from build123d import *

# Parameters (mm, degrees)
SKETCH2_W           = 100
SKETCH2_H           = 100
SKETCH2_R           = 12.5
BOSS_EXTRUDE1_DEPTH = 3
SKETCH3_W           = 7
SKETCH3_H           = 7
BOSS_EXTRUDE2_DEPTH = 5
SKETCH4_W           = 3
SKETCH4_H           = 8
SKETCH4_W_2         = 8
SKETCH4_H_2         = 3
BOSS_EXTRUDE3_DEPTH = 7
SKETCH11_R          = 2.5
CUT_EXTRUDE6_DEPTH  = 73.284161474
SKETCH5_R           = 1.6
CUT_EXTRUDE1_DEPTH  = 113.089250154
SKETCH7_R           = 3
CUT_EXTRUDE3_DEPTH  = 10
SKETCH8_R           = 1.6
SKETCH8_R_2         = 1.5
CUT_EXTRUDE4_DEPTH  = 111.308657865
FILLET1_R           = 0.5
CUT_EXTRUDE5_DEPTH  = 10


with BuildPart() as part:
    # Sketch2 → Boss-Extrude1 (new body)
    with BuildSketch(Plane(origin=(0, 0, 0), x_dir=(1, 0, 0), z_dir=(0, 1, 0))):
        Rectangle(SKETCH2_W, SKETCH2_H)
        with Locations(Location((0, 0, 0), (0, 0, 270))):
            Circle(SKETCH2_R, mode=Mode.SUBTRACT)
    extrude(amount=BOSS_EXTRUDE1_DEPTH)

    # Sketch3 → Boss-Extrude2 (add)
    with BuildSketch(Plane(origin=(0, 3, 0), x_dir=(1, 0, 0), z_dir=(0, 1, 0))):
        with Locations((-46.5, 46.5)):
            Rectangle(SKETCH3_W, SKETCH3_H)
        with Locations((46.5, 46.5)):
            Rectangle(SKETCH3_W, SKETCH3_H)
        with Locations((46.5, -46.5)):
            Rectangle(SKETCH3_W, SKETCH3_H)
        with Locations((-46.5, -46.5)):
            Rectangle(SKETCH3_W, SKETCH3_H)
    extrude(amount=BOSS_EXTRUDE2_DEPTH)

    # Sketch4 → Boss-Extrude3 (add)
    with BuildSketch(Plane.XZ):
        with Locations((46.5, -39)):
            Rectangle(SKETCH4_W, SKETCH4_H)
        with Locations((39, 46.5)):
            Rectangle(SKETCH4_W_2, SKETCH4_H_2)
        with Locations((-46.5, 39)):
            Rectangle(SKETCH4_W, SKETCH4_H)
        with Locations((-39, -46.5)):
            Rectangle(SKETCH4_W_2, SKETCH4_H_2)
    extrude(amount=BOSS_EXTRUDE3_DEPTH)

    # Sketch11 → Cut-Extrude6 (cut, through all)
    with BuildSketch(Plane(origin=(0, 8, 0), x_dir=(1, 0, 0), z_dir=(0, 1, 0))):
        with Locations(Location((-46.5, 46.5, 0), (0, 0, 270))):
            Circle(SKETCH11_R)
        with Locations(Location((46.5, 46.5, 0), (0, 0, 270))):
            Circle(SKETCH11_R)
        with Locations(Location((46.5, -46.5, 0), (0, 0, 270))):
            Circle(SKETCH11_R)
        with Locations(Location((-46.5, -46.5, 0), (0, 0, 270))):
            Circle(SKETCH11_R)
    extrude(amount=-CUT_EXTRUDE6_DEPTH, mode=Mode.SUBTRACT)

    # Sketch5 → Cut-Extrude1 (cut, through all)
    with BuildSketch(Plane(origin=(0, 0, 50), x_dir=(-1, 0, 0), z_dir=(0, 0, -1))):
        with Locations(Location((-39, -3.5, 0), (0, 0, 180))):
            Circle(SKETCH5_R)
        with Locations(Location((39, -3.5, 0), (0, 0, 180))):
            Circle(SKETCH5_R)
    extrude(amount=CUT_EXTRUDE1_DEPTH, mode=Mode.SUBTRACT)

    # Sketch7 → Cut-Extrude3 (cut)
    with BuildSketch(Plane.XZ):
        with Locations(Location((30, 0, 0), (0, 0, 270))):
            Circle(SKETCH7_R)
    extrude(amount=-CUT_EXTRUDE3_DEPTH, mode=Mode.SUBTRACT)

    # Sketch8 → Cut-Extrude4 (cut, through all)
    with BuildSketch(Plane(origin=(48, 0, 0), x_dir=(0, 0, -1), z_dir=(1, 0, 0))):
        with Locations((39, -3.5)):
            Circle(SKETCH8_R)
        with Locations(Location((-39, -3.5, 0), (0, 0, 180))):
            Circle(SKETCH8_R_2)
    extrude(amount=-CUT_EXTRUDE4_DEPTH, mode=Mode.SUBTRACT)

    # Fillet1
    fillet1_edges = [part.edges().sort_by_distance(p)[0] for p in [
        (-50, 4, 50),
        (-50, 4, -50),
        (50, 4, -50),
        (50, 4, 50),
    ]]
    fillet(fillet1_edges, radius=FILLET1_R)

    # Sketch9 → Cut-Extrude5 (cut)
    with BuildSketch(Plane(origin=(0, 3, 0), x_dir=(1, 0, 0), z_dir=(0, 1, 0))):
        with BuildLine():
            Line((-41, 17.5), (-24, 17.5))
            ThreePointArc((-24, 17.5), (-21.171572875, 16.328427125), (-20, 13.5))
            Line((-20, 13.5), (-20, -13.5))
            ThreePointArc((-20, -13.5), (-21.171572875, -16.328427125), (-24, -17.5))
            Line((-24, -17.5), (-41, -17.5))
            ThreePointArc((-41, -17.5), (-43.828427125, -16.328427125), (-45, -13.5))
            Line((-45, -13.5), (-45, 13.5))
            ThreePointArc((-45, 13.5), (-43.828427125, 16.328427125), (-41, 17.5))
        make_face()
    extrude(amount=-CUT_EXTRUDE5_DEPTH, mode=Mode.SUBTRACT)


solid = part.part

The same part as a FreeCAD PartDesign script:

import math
import FreeCAD as App
import Part
import Sketcher

V = App.Vector


def edges_at(feature, points):
    """Names of the edges that pass closest to the given points."""
    edges = feature.Shape.Edges
    near = lambda p: min(range(len(edges)), key=lambda i: edges[i].distToShape(Part.Vertex(*p))[0])
    return sorted({f"Edge{near(p) + 1}" for p in points})

doc = App.newDocument("Part")
body = doc.addObject("PartDesign::Body", "Body")

sketch1 = body.newObject("Sketcher::SketchObject", "Sketch")
sketch1.AttachmentSupport = (doc.getObject("XZ_Plane"), [""])
sketch1.MapMode = "FlatFace"
sketch1.addGeometry([
    Part.LineSegment(V(-50, -50, 0), V(-50, 50, 0)),
    Part.LineSegment(V(-50, 50, 0), V(50, 50, 0)),
    Part.LineSegment(V(50, 50, 0), V(50, -50, 0)),
    Part.LineSegment(V(50, -50, 0), V(-50, -50, 0)),
    Part.Circle(V(0, 0, 0), V(0, 0, 1), 12),
], False)
sketch1.addConstraint([
    Sketcher.Constraint("Coincident", 0, 2, 1, 1),
    Sketcher.Constraint("Coincident", 1, 2, 2, 1),
    Sketcher.Constraint("Coincident", 2, 2, 3, 1),
    Sketcher.Constraint("Coincident", 3, 2, 0, 1),
    Sketcher.Constraint("Vertical", 0),
    Sketcher.Constraint("Horizontal", 1),
    Sketcher.Constraint("Vertical", 2),
    Sketcher.Constraint("Horizontal", 3),
    Sketcher.Constraint("Coincident", 4, 3, -1, 1),
    Sketcher.Constraint("Symmetric", 0, 2, 2, 2, -1, 1),
    Sketcher.Constraint("Equal", 3, 0),
    Sketcher.Constraint("Diameter", 4, 25.0),
    Sketcher.Constraint("DistanceX", 1, 1, 1, 2, 100.0),
])
pad1 = body.newObject("PartDesign::Pad", "Pad")
pad1.Profile = sketch1
pad1.Length = 3
pad1.Reversed = True

sketch2 = body.newObject("Sketcher::SketchObject", "Sketch001")
sketch2.AttachmentSupport = (doc.getObject("XZ_Plane"), [""])
sketch2.MapMode = "FlatFace"
sketch2.AttachmentOffset = App.Placement(V(0, 0, -3), App.Rotation())
sketch2.addGeometry([
    Part.LineSegment(V(-50, -50, 0), V(-50, -43, 0)),
    Part.LineSegment(V(-50, -43, 0), V(-43, -43, 0)),
    Part.LineSegment(V(-43, -43, 0), V(-43, -50, 0)),
    Part.LineSegment(V(-43, -50, 0), V(-50, -50, 0)),
    Part.LineSegment(V(43, -50, 0), V(43, -43, 0)),
    Part.LineSegment(V(43, -43, 0), V(50, -43, 0)),
    Part.LineSegment(V(50, -43, 0), V(50, -50, 0)),
    Part.LineSegment(V(50, -50, 0), V(43, -50, 0)),
    Part.LineSegment(V(43, 43, 0), V(43, 50, 0)),
    Part.LineSegment(V(43, 50, 0), V(50, 50, 0)),
    Part.LineSegment(V(50, 50, 0), V(50, 43, 0)),
    Part.LineSegment(V(50, 43, 0), V(43, 43, 0)),
    Part.LineSegment(V(-50, 43, 0), V(-50, 50, 0)),
    Part.LineSegment(V(-50, 50, 0), V(-43, 50, 0)),
    Part.LineSegment(V(-43, 50, 0), V(-43, 43, 0)),
    Part.LineSegment(V(-43, 43, 0), V(-50, 43, 0)),
], False)
sketch2.addConstraint([
    Sketcher.Constraint("Coincident", 0, 2, 1, 1),
    Sketcher.Constraint("Coincident", 1, 2, 2, 1),
    Sketcher.Constraint("Coincident", 2, 2, 3, 1),
    Sketcher.Constraint("Coincident", 3, 2, 0, 1),
    Sketcher.Constraint("Coincident", 4, 2, 5, 1),
    Sketcher.Constraint("Coincident", 5, 2, 6, 1),
    Sketcher.Constraint("Coincident", 6, 2, 7, 1),
    Sketcher.Constraint("Coincident", 7, 2, 4, 1),
    Sketcher.Constraint("Coincident", 8, 2, 9, 1),
    Sketcher.Constraint("Coincident", 9, 2, 10, 1),
    Sketcher.Constraint("Coincident", 10, 2, 11, 1),
    Sketcher.Constraint("Coincident", 11, 2, 8, 1),
    Sketcher.Constraint("Coincident", 12, 2, 13, 1),
    Sketcher.Constraint("Coincident", 13, 2, 14, 1),
    Sketcher.Constraint("Coincident", 14, 2, 15, 1),
    Sketcher.Constraint("Coincident", 15, 2, 12, 1),
    Sketcher.Constraint("Vertical", 0),
    Sketcher.Constraint("Horizontal", 1),
    Sketcher.Constraint("Vertical", 2),
    Sketcher.Constraint("Horizontal", 3),
    Sketcher.Constraint("Vertical", 4),
    Sketcher.Constraint("Horizontal", 5),
    Sketcher.Constraint("Vertical", 6),
    Sketcher.Constraint("Horizontal", 7),
    Sketcher.Constraint("Vertical", 8),
    Sketcher.Constraint("Horizontal", 9),
    Sketcher.Constraint("Vertical", 10),
    Sketcher.Constraint("Horizontal", 11),
    Sketcher.Constraint("Vertical", 12),
    Sketcher.Constraint("Horizontal", 13),
    Sketcher.Constraint("Vertical", 14),
    Sketcher.Constraint("Horizontal", 15),
    Sketcher.Constraint("Symmetric", 2, 2, 8, 2, -1, 1),
    Sketcher.Constraint("Symmetric", 0, 2, 10, 2, -1, 1),
    Sketcher.Constraint("Symmetric", 6, 2, 12, 2, -1, 1),
    Sketcher.Constraint("Symmetric", 4, 2, 14, 2, -1, 1),
    Sketcher.Constraint("Symmetric", 1, 2, 4, 2, -2),
    Sketcher.Constraint("Symmetric", 3, 2, 6, 2, -2),
    Sketcher.Constraint("Equal", 15, 0),
    Sketcher.Constraint("DistanceX", 1, 1, 1, 2, 7.0),
    Sketcher.Constraint("DistanceX", 0, 2, -1, 1, 50.0),
    Sketcher.Constraint("DistanceY", 0, 2, -1, 1, 43.0),
])
pad2 = body.newObject("PartDesign::Pad", "Pad001")
pad2.Profile = sketch2
pad2.Length = 5
pad2.Reversed = True

sketch3 = body.newObject("Sketcher::SketchObject", "Sketch002")
sketch3.AttachmentSupport = (doc.getObject("XZ_Plane"), [""])
sketch3.MapMode = "FlatFace"
sketch3.addGeometry([
    Part.LineSegment(V(45, -35, 0), V(45, -43, 0)),
    Part.LineSegment(V(45, -43, 0), V(48, -43, 0)),
    Part.LineSegment(V(48, -43, 0), V(48, -35, 0)),
    Part.LineSegment(V(48, -35, 0), V(45, -35, 0)),
    Part.LineSegment(V(35, 48, 0), V(35, 45, 0)),
    Part.LineSegment(V(35, 45, 0), V(43, 45, 0)),
    Part.LineSegment(V(43, 45, 0), V(43, 48, 0)),
    Part.LineSegment(V(43, 48, 0), V(35, 48, 0)),
    Part.LineSegment(V(-48, 43, 0), V(-48, 35, 0)),
    Part.LineSegment(V(-48, 35, 0), V(-45, 35, 0)),
    Part.LineSegment(V(-45, 35, 0), V(-45, 43, 0)),
    Part.LineSegment(V(-45, 43, 0), V(-48, 43, 0)),
    Part.LineSegment(V(-43, -45, 0), V(-43, -48, 0)),
    Part.LineSegment(V(-43, -48, 0), V(-35, -48, 0)),
    Part.LineSegment(V(-35, -48, 0), V(-35, -45, 0)),
    Part.LineSegment(V(-35, -45, 0), V(-43, -45, 0)),
], False)
sketch3.addConstraint([
    Sketcher.Constraint("Coincident", 0, 2, 1, 1),
    Sketcher.Constraint("Coincident", 1, 2, 2, 1),
    Sketcher.Constraint("Coincident", 2, 2, 3, 1),
    Sketcher.Constraint("Coincident", 3, 2, 0, 1),
    Sketcher.Constraint("Coincident", 4, 2, 5, 1),
    Sketcher.Constraint("Coincident", 5, 2, 6, 1),
    Sketcher.Constraint("Coincident", 6, 2, 7, 1),
    Sketcher.Constraint("Coincident", 7, 2, 4, 1),
    Sketcher.Constraint("Coincident", 8, 2, 9, 1),
    Sketcher.Constraint("Coincident", 9, 2, 10, 1),
    Sketcher.Constraint("Coincident", 10, 2, 11, 1),
    Sketcher.Constraint("Coincident", 11, 2, 8, 1),
    Sketcher.Constraint("Coincident", 12, 2, 13, 1),
    Sketcher.Constraint("Coincident", 13, 2, 14, 1),
    Sketcher.Constraint("Coincident", 14, 2, 15, 1),
    Sketcher.Constraint("Coincident", 15, 2, 12, 1),
    Sketcher.Constraint("Vertical", 0),
    Sketcher.Constraint("Horizontal", 1),
    Sketcher.Constraint("Vertical", 2),
    Sketcher.Constraint("Horizontal", 3),
    Sketcher.Constraint("Vertical", 4),
    Sketcher.Constraint("Horizontal", 5),
    Sketcher.Constraint("Vertical", 6),
    Sketcher.Constraint("Horizontal", 7),
    Sketcher.Constraint("Vertical", 8),
    Sketcher.Constraint("Horizontal", 9),
    Sketcher.Constraint("Vertical", 10),
    Sketcher.Constraint("Horizontal", 11),
    Sketcher.Constraint("Vertical", 12),
    Sketcher.Constraint("Horizontal", 13),
    Sketcher.Constraint("Vertical", 14),
    Sketcher.Constraint("Horizontal", 15),
    Sketcher.Constraint("Symmetric", 2, 2, 8, 2, -1, 1),
    Sketcher.Constraint("Symmetric", 0, 2, 10, 2, -1, 1),
    Sketcher.Constraint("Symmetric", 6, 2, 12, 2, -1, 1),
    Sketcher.Constraint("Symmetric", 4, 2, 14, 2, -1, 1),
    Sketcher.Constraint("Equal", 15, 0),
    Sketcher.Constraint("Equal", 11, 4),
    Sketcher.Constraint("DistanceX", 1, 1, 1, 2, 3.0),
    Sketcher.Constraint("DistanceX", 5, 1, 5, 2, 8.0),
    Sketcher.Constraint("DistanceX", -1, 1, 0, 2, 45.0),
    Sketcher.Constraint("DistanceY", 0, 2, -1, 1, 43.0),
    Sketcher.Constraint("DistanceX", -1, 1, 4, 2, 35.0),
    Sketcher.Constraint("DistanceY", -1, 1, 4, 2, 45.0),
])
pad3 = body.newObject("PartDesign::Pad", "Pad002")
pad3.Profile = sketch3
pad3.Length = 7

sketch4 = body.newObject("Sketcher::SketchObject", "Sketch003")
sketch4.AttachmentSupport = (doc.getObject("XZ_Plane"), [""])
sketch4.MapMode = "FlatFace"
sketch4.AttachmentOffset = App.Placement(V(0, 0, -8), App.Rotation())
sketch4.addGeometry([
    Part.Circle(V(-46.5, -46.5, 0), V(0, 0, 1), 2.5),
    Part.Circle(V(46.5, -46.5, 0), V(0, 0, 1), 2.5),
    Part.Circle(V(46.5, 46.5, 0), V(0, 0, 1), 2.5),
    Part.Circle(V(-46.5, 46.5, 0), V(0, 0, 1), 2.5),
], False)
sketch4.addConstraint([
    Sketcher.Constraint("Equal", 0, 1),
    Sketcher.Constraint("Equal", 1, 2),
    Sketcher.Constraint("Equal", 2, 3),
    Sketcher.Constraint("Symmetric", 0, 3, 2, 3, -1, 1),
    Sketcher.Constraint("Symmetric", 1, 3, 3, 3, -1, 1),
    Sketcher.Constraint("Symmetric", 0, 3, 1, 3, -2),
    Sketcher.Constraint("Diameter", 0, 5.0),
    Sketcher.Constraint("DistanceX", 0, 3, 1, 3, 93.0),
    Sketcher.Constraint("DistanceY", 1, 3, 2, 3, 93.0),
])
pocket1 = body.newObject("PartDesign::Pocket", "Pocket")
pocket1.Profile = sketch4
pocket1.Type = "ThroughAll"
pocket1.Reversed = True

sketch5 = body.newObject("Sketcher::SketchObject", "Sketch004")
sketch5.AttachmentSupport = (doc.getObject("XY_Plane"), [""])
sketch5.MapMode = "FlatFace"
sketch5.AttachmentOffset = App.Placement(V(0, 0, 50), App.Rotation())
sketch5.addGeometry([
    Part.Circle(V(39, -3.5, 0), V(0, 0, 1), 1.6),
    Part.Circle(V(-39, -3.5, 0), V(0, 0, 1), 1.6),
], False)
sketch5.addConstraint([
    Sketcher.Constraint("Equal", 0, 1),
    Sketcher.Constraint("Symmetric", 0, 3, 1, 3, -2),
    Sketcher.Constraint("Diameter", 0, 3.2),
    Sketcher.Constraint("DistanceX", -1, 1, 0, 3, 39.0),
    Sketcher.Constraint("DistanceY", 0, 3, -1, 1, 3.5),
])
pocket2 = body.newObject("PartDesign::Pocket", "Pocket001")
pocket2.Profile = sketch5
pocket2.Type = "ThroughAll"

sketch6 = body.newObject("Sketcher::SketchObject", "Sketch005")
sketch6.AttachmentSupport = (doc.getObject("XZ_Plane"), [""])
sketch6.MapMode = "FlatFace"
sketch6.addGeometry(Part.Circle(V(30, 0, 0), V(0, 0, 1), 3), False)
sketch6.addConstraint([
    Sketcher.Constraint("PointOnObject", 0, 3, -1),
    Sketcher.Constraint("Diameter", 0, 6.0),
    Sketcher.Constraint("DistanceX", -1, 1, 0, 3, 30.0),
])
pocket3 = body.newObject("PartDesign::Pocket", "Pocket002")
pocket3.Profile = sketch6
pocket3.Length = 10

sketch7 = body.newObject("Sketcher::SketchObject", "Sketch006")
sketch7.AttachmentSupport = (doc.getObject("YZ_Plane"), [""])
sketch7.MapMode = "FlatFace"
sketch7.AttachmentOffset = App.Placement(V(0, 0, 48), App.Rotation())
sketch7.addGeometry([
    Part.Circle(V(-3.5, -39, 0), V(0, 0, 1), 1.6),
    Part.Circle(V(-3.5, 39, 0), V(0, 0, 1), 1.5),
], False)
sketch7.addConstraint([
    Sketcher.Constraint("Symmetric", 0, 3, 1, 3, -1),
    Sketcher.Constraint("Diameter", 1, 3.0),
    Sketcher.Constraint("Diameter", 0, 3.2),
    Sketcher.Constraint("DistanceY", 0, 3, -1, 1, 39.0),
    Sketcher.Constraint("DistanceX", 0, 3, -1, 1, 3.5),
])
pocket4 = body.newObject("PartDesign::Pocket", "Pocket003")
pocket4.Profile = sketch7
pocket4.Type = "ThroughAll"
doc.recompute()

fillet = body.newObject("PartDesign::Fillet", "Fillet")
fillet.Base = (pocket4, edges_at(pocket4, [
    (-50, 4, 50),
    (-50, 4, -50),
    (50, 4, -50),
    (50, 4, 50),
]))
fillet.Radius = 0.5

sketch8 = body.newObject("Sketcher::SketchObject", "Sketch007")
sketch8.AttachmentSupport = (doc.getObject("XZ_Plane"), [""])
sketch8.MapMode = "FlatFace"
sketch8.AttachmentOffset = App.Placement(V(0, 0, -3), App.Rotation())
sketch8.addGeometry([
    Part.LineSegment(V(-24, -17.5, 0), V(-41, -17.5, 0)),
    Part.ArcOfCircle(Part.Circle(V(-41, -13.5, 0), V(0, 0, 1), 4), math.radians(180), math.radians(270)),
    Part.LineSegment(V(-45, -13.5, 0), V(-45, 13.5, 0)),
    Part.ArcOfCircle(Part.Circle(V(-41, 13.5, 0), V(0, 0, 1), 4), math.radians(90), math.radians(180)),
    Part.LineSegment(V(-41, 17.5, 0), V(-24, 17.5, 0)),
    Part.ArcOfCircle(Part.Circle(V(-24, 13.5, 0), V(0, 0, 1), 4), math.radians(0), math.radians(90)),
    Part.LineSegment(V(-20, 13.5, 0), V(-20, -13.5, 0)),
    Part.ArcOfCircle(Part.Circle(V(-24, -13.5, 0), V(0, 0, 1), 4), math.radians(-90), math.radians(0)),
], False)
sketch8.addConstraint([
    Sketcher.Constraint("Tangent", 0, 2, 1, 2),
    Sketcher.Constraint("Tangent", 1, 1, 2, 1),
    Sketcher.Constraint("Tangent", 2, 2, 3, 2),
    Sketcher.Constraint("Tangent", 3, 1, 4, 1),
    Sketcher.Constraint("Tangent", 4, 2, 5, 2),
    Sketcher.Constraint("Tangent", 5, 1, 6, 1),
    Sketcher.Constraint("Tangent", 6, 2, 7, 2),
    Sketcher.Constraint("Tangent", 7, 1, 0, 1),
    Sketcher.Constraint("Horizontal", 0),
    Sketcher.Constraint("Vertical", 2),
    Sketcher.Constraint("Horizontal", 4),
    Sketcher.Constraint("Vertical", 6),
    Sketcher.Constraint("Equal", 1, 3),
    Sketcher.Constraint("Equal", 3, 5),
    Sketcher.Constraint("Equal", 5, 7),
    Sketcher.Constraint("Radius", 1, 4.0),
    Sketcher.Constraint("DistanceX", 0, 2, 0, 1, 17.0),
    Sketcher.Constraint("DistanceY", 2, 1, 2, 2, 27.0),
    Sketcher.Constraint("DistanceX", 1, 3, -1, 1, 41.0),
    Sketcher.Constraint("DistanceY", 1, 3, -1, 1, 13.5),
])
pocket5 = body.newObject("PartDesign::Pocket", "Pocket004")
pocket5.Profile = sketch8
pocket5.Length = 10
pocket5.Reversed = True

doc.recompute()
